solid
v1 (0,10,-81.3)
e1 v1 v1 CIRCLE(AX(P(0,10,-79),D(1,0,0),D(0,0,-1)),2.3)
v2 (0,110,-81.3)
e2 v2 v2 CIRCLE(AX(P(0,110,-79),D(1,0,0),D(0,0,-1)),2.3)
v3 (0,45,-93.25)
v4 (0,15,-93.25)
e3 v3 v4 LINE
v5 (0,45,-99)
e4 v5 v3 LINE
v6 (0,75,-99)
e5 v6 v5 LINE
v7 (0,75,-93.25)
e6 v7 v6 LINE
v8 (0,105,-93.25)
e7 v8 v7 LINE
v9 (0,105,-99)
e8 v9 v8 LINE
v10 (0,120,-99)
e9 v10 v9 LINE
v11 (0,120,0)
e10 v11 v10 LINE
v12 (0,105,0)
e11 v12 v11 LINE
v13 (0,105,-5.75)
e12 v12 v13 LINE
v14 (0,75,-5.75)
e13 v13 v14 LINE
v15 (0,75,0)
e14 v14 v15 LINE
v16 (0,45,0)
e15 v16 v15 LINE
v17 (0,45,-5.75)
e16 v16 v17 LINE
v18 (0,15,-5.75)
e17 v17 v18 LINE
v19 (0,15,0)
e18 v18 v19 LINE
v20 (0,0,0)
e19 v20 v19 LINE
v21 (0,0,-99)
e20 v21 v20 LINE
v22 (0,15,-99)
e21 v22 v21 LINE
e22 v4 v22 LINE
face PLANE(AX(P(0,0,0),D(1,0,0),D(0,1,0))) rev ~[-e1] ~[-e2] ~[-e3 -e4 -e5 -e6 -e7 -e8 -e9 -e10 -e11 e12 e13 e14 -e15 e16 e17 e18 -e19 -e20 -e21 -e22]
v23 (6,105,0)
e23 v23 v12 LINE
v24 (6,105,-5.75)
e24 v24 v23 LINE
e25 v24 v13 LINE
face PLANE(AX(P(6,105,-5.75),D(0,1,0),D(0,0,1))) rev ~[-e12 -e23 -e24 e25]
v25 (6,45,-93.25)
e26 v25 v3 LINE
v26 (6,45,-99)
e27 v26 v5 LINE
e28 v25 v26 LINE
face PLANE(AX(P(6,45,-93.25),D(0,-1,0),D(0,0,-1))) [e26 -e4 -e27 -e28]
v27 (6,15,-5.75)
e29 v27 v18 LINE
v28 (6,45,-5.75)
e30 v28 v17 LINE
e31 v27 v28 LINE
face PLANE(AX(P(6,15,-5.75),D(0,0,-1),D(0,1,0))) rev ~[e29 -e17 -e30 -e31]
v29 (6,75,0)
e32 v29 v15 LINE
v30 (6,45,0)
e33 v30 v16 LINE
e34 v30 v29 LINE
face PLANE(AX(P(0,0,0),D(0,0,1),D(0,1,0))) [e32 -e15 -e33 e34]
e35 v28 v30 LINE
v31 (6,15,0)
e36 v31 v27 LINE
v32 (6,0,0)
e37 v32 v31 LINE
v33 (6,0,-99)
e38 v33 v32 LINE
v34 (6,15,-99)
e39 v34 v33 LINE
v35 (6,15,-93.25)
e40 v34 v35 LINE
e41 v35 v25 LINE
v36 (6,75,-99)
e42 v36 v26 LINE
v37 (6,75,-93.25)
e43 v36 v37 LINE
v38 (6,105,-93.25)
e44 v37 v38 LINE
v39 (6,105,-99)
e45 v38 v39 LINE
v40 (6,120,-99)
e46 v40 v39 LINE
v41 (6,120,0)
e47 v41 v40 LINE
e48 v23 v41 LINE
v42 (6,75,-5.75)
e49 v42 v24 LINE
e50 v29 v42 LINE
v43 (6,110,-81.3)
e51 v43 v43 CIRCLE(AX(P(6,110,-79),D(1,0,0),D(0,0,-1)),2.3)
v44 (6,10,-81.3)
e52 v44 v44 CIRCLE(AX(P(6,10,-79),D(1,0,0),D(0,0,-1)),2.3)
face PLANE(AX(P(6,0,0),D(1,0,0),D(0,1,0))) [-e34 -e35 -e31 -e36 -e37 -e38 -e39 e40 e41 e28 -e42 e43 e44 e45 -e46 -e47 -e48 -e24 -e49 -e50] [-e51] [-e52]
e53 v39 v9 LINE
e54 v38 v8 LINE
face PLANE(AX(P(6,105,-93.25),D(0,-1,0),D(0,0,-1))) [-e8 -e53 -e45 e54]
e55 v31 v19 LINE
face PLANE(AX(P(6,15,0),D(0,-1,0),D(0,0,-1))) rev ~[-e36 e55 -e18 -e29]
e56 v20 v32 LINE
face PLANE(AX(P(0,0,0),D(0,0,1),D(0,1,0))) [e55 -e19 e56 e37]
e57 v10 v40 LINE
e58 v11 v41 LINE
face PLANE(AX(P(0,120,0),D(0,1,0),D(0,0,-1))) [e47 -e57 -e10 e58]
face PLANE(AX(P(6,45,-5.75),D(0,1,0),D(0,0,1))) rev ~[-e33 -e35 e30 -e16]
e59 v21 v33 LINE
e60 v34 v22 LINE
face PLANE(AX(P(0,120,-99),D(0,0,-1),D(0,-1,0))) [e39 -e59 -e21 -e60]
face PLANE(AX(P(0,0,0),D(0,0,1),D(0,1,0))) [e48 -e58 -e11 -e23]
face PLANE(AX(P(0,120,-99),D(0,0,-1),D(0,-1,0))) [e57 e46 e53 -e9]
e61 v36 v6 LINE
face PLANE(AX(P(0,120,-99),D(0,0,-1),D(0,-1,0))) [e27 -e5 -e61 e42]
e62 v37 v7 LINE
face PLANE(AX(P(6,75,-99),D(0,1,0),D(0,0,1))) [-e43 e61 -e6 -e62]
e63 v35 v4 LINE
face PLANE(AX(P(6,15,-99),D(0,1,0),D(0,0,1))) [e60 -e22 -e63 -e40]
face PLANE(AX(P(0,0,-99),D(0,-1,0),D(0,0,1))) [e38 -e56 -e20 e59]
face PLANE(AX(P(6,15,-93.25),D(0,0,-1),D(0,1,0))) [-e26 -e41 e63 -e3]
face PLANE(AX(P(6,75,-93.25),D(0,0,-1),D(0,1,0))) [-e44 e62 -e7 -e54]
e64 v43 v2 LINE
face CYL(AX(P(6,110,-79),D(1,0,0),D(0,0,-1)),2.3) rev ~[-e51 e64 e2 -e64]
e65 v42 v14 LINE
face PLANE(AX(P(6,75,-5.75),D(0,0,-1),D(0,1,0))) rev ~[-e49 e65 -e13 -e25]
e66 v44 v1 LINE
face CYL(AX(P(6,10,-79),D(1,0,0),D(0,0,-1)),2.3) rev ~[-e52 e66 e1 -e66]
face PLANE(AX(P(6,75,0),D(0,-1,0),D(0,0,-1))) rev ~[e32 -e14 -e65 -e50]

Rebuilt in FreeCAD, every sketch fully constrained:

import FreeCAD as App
import Part
import Sketcher


def add_polygon(sketch, points):
    """Adds a closed chain of lines whose ends are joined by coincident constraints."""
    first, n = sketch.GeometryCount, len(points)
    for a, b in zip(points, points[1:] + points[:1]):
        sketch.addGeometry(Part.LineSegment(App.Vector(*a, 0), App.Vector(*b, 0)), False)
    for i in range(n):
        sketch.addConstraint(Sketcher.Constraint("Coincident", first + i, 2, first + (i + 1) % n, 1))

doc = App.newDocument("Part")
body = doc.addObject("PartDesign::Body", "Body")

sketch1 = body.newObject("Sketcher::SketchObject", "Sketch")
sketch1.AttachmentSupport = (doc.getObject("YZ_Plane"), [""])
sketch1.MapMode = "FlatFace"
add_polygon(sketch1, [(120, 0), (0, 0), (0, -99), (120, -99)])
sketch1.addConstraint([
    Sketcher.Constraint("Horizontal", 0),
    Sketcher.Constraint("Vertical", 1),
    Sketcher.Constraint("Horizontal", 2),
    Sketcher.Constraint("Vertical", 3),
    Sketcher.Constraint("Coincident", 0, 2, -1, 1),
    Sketcher.Constraint("DistanceX", 0, 2, 0, 1, 120.0),
    Sketcher.Constraint("DistanceY", 1, 2, 1, 1, 99.0),
])
pad1 = body.newObject("PartDesign::Pad", "Pad")
pad1.Profile = sketch1
pad1.Length = 6

sketch2 = body.newObject("Sketcher::SketchObject", "Sketch001")
sketch2.AttachmentSupport = (doc.getObject("YZ_Plane"), [""])
sketch2.MapMode = "FlatFace"
sketch2.AttachmentOffset = App.Placement(App.Vector(0, 0, 6), App.Rotation())
add_polygon(sketch2, [(105, -5.75), (105, 0), (75, 0), (75, -5.75)])
add_polygon(sketch2, [(75, -99), (105, -99), (105, -93.25), (75, -93.25)])
add_polygon(sketch2, [(45, -5.75), (45, 0), (15, 0), (15, -5.75)])
add_polygon(sketch2, [(15, -99), (45, -99), (45, -93.25), (15, -93.25)])
sketch2.addConstraint([
    Sketcher.Constraint("Vertical", 0),
    Sketcher.Constraint("Horizontal", 1),
    Sketcher.Constraint("Vertical", 2),
    Sketcher.Constraint("Horizontal", 3),
    Sketcher.Constraint("Horizontal", 4),
    Sketcher.Constraint("Vertical", 5),
    Sketcher.Constraint("Horizontal", 6),
    Sketcher.Constraint("Vertical", 7),
    Sketcher.Constraint("Vertical", 8),
    Sketcher.Constraint("Horizontal", 9),
    Sketcher.Constraint("Vertical", 10),
    Sketcher.Constraint("Horizontal", 11),
    Sketcher.Constraint("Horizontal", 12),
    Sketcher.Constraint("Vertical", 13),
    Sketcher.Constraint("Horizontal", 14),
    Sketcher.Constraint("Vertical", 15),
    Sketcher.Constraint("PointOnObject", 0, 2, -1),
    Sketcher.Constraint("PointOnObject", 8, 2, -1),
    Sketcher.Constraint("Horizontal", 3, 2, 10, 2),
    Sketcher.Constraint("Horizontal", 7, 2, 12, 2),
    Sketcher.Constraint("Horizontal", 6, 2, 13, 2),
    Sketcher.Constraint("Vertical", 3, 2, 4, 2),
    Sketcher.Constraint("Vertical", 2, 2, 6, 2),
    Sketcher.Constraint("Vertical", 11, 2, 12, 2),
    Sketcher.Constraint("Vertical", 10, 2, 14, 2),
    Sketcher.Constraint("Equal", 6, 9),
    Sketcher.Constraint("Equal", 2, 5),
    Sketcher.Constraint("DistanceX", 1, 2, 1, 1, 30.0),
    Sketcher.Constraint("DistanceX", -1, 1, 9, 2, 15.0),
    Sketcher.Constraint("DistanceX", 8, 2, 1, 2, 30.0),
    Sketcher.Constraint("DistanceY", 0, 1, 0, 2, 5.75),
    Sketcher.Constraint("DistanceY", 4, 2, -1, 1, 99.0),
])
pocket1 = body.newObject("PartDesign::Pocket", "Pocket")
pocket1.Profile = sketch2
pocket1.Type = "UpToFirst"

sketch3 = body.newObject("Sketcher::SketchObject", "Sketch002")
sketch3.AttachmentSupport = (doc.getObject("YZ_Plane"), [""])
sketch3.MapMode = "FlatFace"
sketch3.AttachmentOffset = App.Placement(App.Vector(0, 0, 6), App.Rotation())
sketch3.addGeometry([
    Part.Circle(App.Vector(10, -79, 0), App.Vector(0, 0, 1), 2.3),
    Part.Circle(App.Vector(110, -79, 0), App.Vector(0, 0, 1), 2.3),
], False)
sketch3.addConstraint([
    Sketcher.Constraint("Equal", 0, 1),
    Sketcher.Constraint("Horizontal", 0, 3, 1, 3),
    Sketcher.Constraint("Diameter", 0, 4.6),
    Sketcher.Constraint("DistanceX", -1, 1, 0, 3, 10.0),
    Sketcher.Constraint("DistanceY", 0, 3, -1, 1, 79.0),
    Sketcher.Constraint("DistanceX", -1, 1, 1, 3, 110.0),
])
pocket2 = body.newObject("PartDesign::Pocket", "Pocket001")
pocket2.Profile = sketch3
pocket2.Length = 6

doc.recompute()
